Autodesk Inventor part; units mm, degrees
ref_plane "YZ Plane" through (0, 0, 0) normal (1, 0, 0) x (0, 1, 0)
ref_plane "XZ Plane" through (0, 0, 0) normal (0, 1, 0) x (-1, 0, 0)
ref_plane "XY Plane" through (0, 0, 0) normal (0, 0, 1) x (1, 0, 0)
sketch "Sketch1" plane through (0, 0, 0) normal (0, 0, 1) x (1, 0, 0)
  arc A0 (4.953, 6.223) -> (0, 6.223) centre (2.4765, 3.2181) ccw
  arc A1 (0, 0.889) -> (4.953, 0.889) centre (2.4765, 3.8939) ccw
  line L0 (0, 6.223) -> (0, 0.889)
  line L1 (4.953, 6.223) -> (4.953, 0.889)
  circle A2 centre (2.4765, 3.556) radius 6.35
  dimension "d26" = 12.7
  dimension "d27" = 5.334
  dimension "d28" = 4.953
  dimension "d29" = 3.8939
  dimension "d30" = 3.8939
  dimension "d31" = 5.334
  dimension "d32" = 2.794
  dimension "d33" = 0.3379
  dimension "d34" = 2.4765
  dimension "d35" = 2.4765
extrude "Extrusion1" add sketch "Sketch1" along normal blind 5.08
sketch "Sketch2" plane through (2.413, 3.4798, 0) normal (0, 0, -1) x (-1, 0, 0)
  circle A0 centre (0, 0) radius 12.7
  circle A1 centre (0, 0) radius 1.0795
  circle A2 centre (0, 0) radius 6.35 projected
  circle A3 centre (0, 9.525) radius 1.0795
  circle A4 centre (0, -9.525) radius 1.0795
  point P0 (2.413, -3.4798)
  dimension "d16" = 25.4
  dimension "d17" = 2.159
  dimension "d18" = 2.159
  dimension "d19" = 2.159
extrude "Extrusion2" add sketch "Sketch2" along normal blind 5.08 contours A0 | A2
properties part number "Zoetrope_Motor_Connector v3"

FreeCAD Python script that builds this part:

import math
import FreeCAD as App
import Part
import Sketcher

V = App.Vector
Q = App.Units.Quantity

doc = App.newDocument("Part")
body = doc.addObject("PartDesign::Body", "Body")

sketch1 = doc.addObject("Sketcher::SketchObject", "Sketch")
body.addObject(sketch1)
sketch1.AttachmentSupport = (doc.XY_Plane, [""])
sketch1.MapMode = "FlatFace"
sketch1.addGeometry(Part.Circle(V(2.4765, 3.556, 0), V(0, 0, 1), 6.35), False)
sketch1.addGeometry(Part.ArcOfCircle(Part.Circle(V(2.4765, 3.2181, 0), V(0, 0, 1), 3.893902), math.radians(50.506227), math.radians(129.493773)), False)
sketch1.addGeometry(Part.LineSegment(V(4.953, 6.223, 0), V(4.953, 0.889, 0)), False)
sketch1.addGeometry(Part.ArcOfCircle(Part.Circle(V(2.4765, 3.8939, 0), V(0, 0, 1), 3.893902), math.radians(-129.493773), math.radians(-50.506227)), False)
sketch1.addGeometry(Part.LineSegment(V(0, 0.889, 0), V(0, 6.223, 0)), False)
sketch1.addConstraint(Sketcher.Constraint("Coincident", 1, 1, 2, 1))
sketch1.addConstraint(Sketcher.Constraint("Coincident", 2, 2, 3, 2))
sketch1.addConstraint(Sketcher.Constraint("Coincident", 3, 1, 4, 1))
sketch1.addConstraint(Sketcher.Constraint("Coincident", 4, 2, 1, 2))
sketch1.addConstraint(Sketcher.Constraint("Vertical", 2))
sketch1.addConstraint(Sketcher.Constraint("Vertical", 4))
sketch1.addConstraint(Sketcher.Constraint("Equal", 1, 3))
sketch1.addConstraint(Sketcher.Constraint("PointOnObject", 3, 1, -2))
sketch1.addConstraint(Sketcher.Constraint("Horizontal", 2, 2, 3, 1))
sketch1.addConstraint(Sketcher.Constraint("Horizontal", 1, 1, 4, 2))
sketch1.addConstraint(Sketcher.Constraint("Vertical", 0, 3, 1, 3))
sketch1.addConstraint(Sketcher.Constraint("Diameter", 0, Q("0.5 in")))
sketch1.addConstraint(Sketcher.Constraint("DistanceY", 2, 2, 2, 1, Q("0.21 in")))
sketch1.addConstraint(Sketcher.Constraint("Radius", 1, Q("0.1533 in")))
sketch1.addConstraint(Sketcher.Constraint("DistanceX", -1, 1, 1, 1, Q("0.195 in")))
sketch1.addConstraint(Sketcher.Constraint("DistanceY", -1, 1, 3, 3, Q("0.1533 in")))
sketch1.addConstraint(Sketcher.Constraint("DistanceY", 1, 3, 0, 3, Q("0.0133 in")))
pad1 = doc.addObject("PartDesign::Pad", "Pad")
body.addObject(pad1)
pad1.Profile = sketch1
pad1.Length = Q("0.2 in")

sketch2 = doc.addObject("Sketcher::SketchObject", "Sketch001")
body.addObject(sketch2)
sketch2.AttachmentSupport = (doc.XY_Plane, [""])
sketch2.MapMode = "FlatFace"
sketch2.addGeometry(Part.Circle(V(2.413, 3.4798, 0), V(0, 0, 1), 12.7), False)
sketch2.addGeometry(Part.Circle(V(2.413, -6.0452, 0), V(0, 0, 1), 1.0795), False)
sketch2.addGeometry(Part.Circle(V(2.413, 13.0048, 0), V(0, 0, 1), 1.0795), False)
sketch2.addGeometry(Part.Circle(V(2.413, 3.4798, 0), V(0, 0, 1), 1.0795), False)
sketch2.addConstraint(Sketcher.Constraint("Coincident", 3, 3, 0, 3))
sketch2.addConstraint(Sketcher.Constraint("Equal", 1, 2))
sketch2.addConstraint(Sketcher.Constraint("Equal", 2, 3))
sketch2.addConstraint(Sketcher.Constraint("Vertical", 0, 3, 1, 3))
sketch2.addConstraint(Sketcher.Constraint("Vertical", 1, 3, 2, 3))
sketch2.addConstraint(Sketcher.Constraint("Diameter", 0, Q("1 in")))
sketch2.addConstraint(Sketcher.Constraint("Diameter", 1, Q("0.085 in")))
sketch2.addConstraint(Sketcher.Constraint("DistanceY", 1, 3, 2, 3, Q("0.75 in")))
sketch2.addConstraint(Sketcher.Constraint("DistanceX", -1, 1, 0, 3, Q("0.095 in")))
sketch2.addConstraint(Sketcher.Constraint("DistanceY", -1, 1, 0, 3, Q("0.137 in")))
sketch2.addConstraint(Sketcher.Constraint("DistanceY", 1, 3, -1, 1, Q("0.238 in")))
pad2 = doc.addObject("PartDesign::Pad", "Pad001")
body.addObject(pad2)
pad2.Profile = sketch2
pad2.Length = Q("0.2 in")
pad2.Reversed = True

doc.recompute()
